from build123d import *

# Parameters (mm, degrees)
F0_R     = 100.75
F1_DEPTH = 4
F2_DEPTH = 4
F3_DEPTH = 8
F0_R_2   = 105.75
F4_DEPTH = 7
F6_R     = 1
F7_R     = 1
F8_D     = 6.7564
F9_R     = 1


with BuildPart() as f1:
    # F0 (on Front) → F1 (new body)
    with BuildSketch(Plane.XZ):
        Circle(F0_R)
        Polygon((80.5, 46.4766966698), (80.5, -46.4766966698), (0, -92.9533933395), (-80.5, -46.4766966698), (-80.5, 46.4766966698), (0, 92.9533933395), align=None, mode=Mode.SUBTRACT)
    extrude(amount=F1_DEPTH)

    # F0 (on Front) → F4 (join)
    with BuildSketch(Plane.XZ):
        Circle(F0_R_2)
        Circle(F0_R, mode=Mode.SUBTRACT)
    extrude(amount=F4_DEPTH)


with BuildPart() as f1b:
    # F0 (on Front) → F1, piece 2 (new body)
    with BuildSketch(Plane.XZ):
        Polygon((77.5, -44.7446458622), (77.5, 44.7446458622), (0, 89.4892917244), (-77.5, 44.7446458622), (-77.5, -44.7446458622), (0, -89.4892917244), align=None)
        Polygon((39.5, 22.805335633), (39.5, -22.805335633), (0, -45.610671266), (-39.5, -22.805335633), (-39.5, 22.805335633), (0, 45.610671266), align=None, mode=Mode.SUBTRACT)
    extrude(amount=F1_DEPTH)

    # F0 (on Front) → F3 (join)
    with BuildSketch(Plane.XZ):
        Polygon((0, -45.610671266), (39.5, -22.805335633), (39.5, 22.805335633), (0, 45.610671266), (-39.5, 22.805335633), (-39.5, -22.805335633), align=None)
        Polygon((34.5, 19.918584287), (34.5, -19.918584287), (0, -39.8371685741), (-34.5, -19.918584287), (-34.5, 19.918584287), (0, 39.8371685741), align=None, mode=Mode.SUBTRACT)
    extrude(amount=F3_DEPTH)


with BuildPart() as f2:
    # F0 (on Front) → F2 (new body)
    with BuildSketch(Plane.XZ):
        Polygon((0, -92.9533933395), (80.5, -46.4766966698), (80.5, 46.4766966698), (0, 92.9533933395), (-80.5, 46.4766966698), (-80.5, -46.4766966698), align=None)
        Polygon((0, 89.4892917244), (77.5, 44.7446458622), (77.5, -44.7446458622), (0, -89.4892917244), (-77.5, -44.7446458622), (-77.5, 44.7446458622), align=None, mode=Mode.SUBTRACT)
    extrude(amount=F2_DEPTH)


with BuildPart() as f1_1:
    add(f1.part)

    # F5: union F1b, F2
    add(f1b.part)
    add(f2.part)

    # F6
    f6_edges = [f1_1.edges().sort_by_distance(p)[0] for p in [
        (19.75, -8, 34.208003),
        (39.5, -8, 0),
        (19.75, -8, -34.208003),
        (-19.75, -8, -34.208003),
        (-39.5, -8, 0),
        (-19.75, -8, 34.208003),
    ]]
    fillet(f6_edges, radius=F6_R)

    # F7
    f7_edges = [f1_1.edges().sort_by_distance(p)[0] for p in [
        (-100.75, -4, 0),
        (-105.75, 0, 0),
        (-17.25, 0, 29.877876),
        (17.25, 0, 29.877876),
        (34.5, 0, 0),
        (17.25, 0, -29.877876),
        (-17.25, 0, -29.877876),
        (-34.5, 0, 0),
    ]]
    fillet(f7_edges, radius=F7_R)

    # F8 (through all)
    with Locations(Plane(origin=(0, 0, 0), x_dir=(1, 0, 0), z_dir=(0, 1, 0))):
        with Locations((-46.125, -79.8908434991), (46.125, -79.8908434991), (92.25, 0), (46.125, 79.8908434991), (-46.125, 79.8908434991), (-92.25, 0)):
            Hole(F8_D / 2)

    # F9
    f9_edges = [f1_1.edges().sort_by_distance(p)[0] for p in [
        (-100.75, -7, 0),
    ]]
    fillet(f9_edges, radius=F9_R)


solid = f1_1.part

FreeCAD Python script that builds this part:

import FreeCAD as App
import Part
import Sketcher
Q = App.Units.Quantity


def edges_at(feature, points):
    """Names of the edges that pass closest to the given points."""
    edges = feature.Shape.Edges
    near = lambda p: min(range(len(edges)), key=lambda i: edges[i].distToShape(Part.Vertex(*p))[0])
    return sorted({f"Edge{near(p) + 1}" for p in points})

doc = App.newDocument("Part")
body = doc.addObject("PartDesign::Body", "Body")

# Sketch on XZ plane
sketch1 = body.newObject("Sketcher::SketchObject", "Sketch")
sketch1.AttachmentSupport = (doc.getObject("XZ_Plane"), [""])
sketch1.MapMode = "FlatFace"
sketch1.addGeometry(Part.Circle(App.Vector(0, 0, 0), App.Vector(0, 0, 1), 101), False)
sketch1.addGeometry(Part.LineSegment(App.Vector(0, 93, 0), App.Vector(80, 46, 0)), False)
sketch1.addGeometry(Part.LineSegment(App.Vector(80, 46, 0), App.Vector(80, -46, 0)), False)
sketch1.addGeometry(Part.LineSegment(App.Vector(80, -46, 0), App.Vector(0, -93, 0)), False)
sketch1.addGeometry(Part.LineSegment(App.Vector(0, -93, 0), App.Vector(-80, -46, 0)), False)
sketch1.addGeometry(Part.LineSegment(App.Vector(-80, -46, 0), App.Vector(-80, 46, 0)), False)
sketch1.addGeometry(Part.LineSegment(App.Vector(-80, 46, 0), App.Vector(0, 93, 0)), False)
sketch1.addConstraint(Sketcher.Constraint("Coincident", 1, 2, 2, 1))
sketch1.addConstraint(Sketcher.Constraint("Coincident", 2, 2, 3, 1))
sketch1.addConstraint(Sketcher.Constraint("Coincident", 3, 2, 4, 1))
sketch1.addConstraint(Sketcher.Constraint("Coincident", 4, 2, 5, 1))
sketch1.addConstraint(Sketcher.Constraint("Coincident", 5, 2, 6, 1))
sketch1.addConstraint(Sketcher.Constraint("Coincident", 6, 2, 1, 1))
sketch1.addConstraint(Sketcher.Constraint("Vertical", 2))
sketch1.addConstraint(Sketcher.Constraint("Vertical", 5))
sketch1.addConstraint(Sketcher.Constraint("Coincident", 0, 3, -1, 1))
sketch1.addConstraint(Sketcher.Constraint("Symmetric", 1, 2, 4, 2, -1, 1))
sketch1.addConstraint(Sketcher.Constraint("Symmetric", 3, 2, 6, 2, -1, 1))
sketch1.addConstraint(Sketcher.Constraint("PointOnObject", 3, 2, -2))
sketch1.addConstraint(Sketcher.Constraint("Parallel", 3, 6))
sketch1.addConstraint(Sketcher.Constraint("Horizontal", 2, 2, 4, 2))
sketch1.addConstraint(Sketcher.Constraint("Diameter", 0, 201.5))
sketch1.addConstraint(Sketcher.Constraint("Angle", 1, Q("-30 deg")))
sketch1.addConstraint(Sketcher.Constraint("DistanceX", 4, 2, 2, 2, 161.0))
sketch1.addConstraint(Sketcher.Constraint("DistanceY", 2, 2, 2, 1, 92.953393))
pad1 = body.newObject("PartDesign::Pad", "Pad")
pad1.Profile = sketch1
pad1.Length = 4

# Sketch on XZ plane
sketch2 = body.newObject("Sketcher::SketchObject", "Sketch001")
sketch2.AttachmentSupport = (doc.getObject("XZ_Plane"), [""])
sketch2.MapMode = "FlatFace"
sketch2.addGeometry(Part.Circle(App.Vector(0, 0, 0), App.Vector(0, 0, 1), 106), False)
sketch2.addGeometry(Part.Circle(App.Vector(0, 0, 0), App.Vector(0, 0, 1), 101), False)
sketch2.addConstraint(Sketcher.Constraint("Coincident", 0, 3, -1, 1))
sketch2.addConstraint(Sketcher.Constraint("Coincident", 1, 3, -1, 1))
sketch2.addConstraint(Sketcher.Constraint("Diameter", 0, 211.5))
sketch2.addConstraint(Sketcher.Constraint("Diameter", 1, 201.5))
pad2 = body.newObject("PartDesign::Pad", "Pad001")
pad2.Profile = sketch2
pad2.Length = 7
body2 = doc.addObject("PartDesign::Body", "Body001")

# Sketch on XZ plane
sketch3 = body2.newObject("Sketcher::SketchObject", "Sketch002")
sketch3.AttachmentSupport = (doc.getObject("XZ_Plane001"), [""])
sketch3.MapMode = "FlatFace"
sketch3.addGeometry(Part.LineSegment(App.Vector(78, -45, 0), App.Vector(78, 45, 0)), False)
sketch3.addGeometry(Part.LineSegment(App.Vector(78, 45, 0), App.Vector(0, 89, 0)), False)
sketch3.addGeometry(Part.LineSegment(App.Vector(0, 89, 0), App.Vector(-78, 45, 0)), False)
sketch3.addGeometry(Part.LineSegment(App.Vector(-78, 45, 0), App.Vector(-78, -45, 0)), False)
sketch3.addGeometry(Part.LineSegment(App.Vector(-78, -45, 0), App.Vector(0, -89, 0)), False)
sketch3.addGeometry(Part.LineSegment(App.Vector(0, -89, 0), App.Vector(78, -45, 0)), False)
sketch3.addGeometry(Part.LineSegment(App.Vector(0, 46, 0), App.Vector(40, 23, 0)), False)
sketch3.addGeometry(Part.LineSegment(App.Vector(40, 23, 0), App.Vector(40, -23, 0)), False)
sketch3.addGeometry(Part.LineSegment(App.Vector(40, -23, 0), App.Vector(0, -46, 0)), False)
sketch3.addGeometry(Part.LineSegment(App.Vector(0, -46, 0), App.Vector(-40, -23, 0)), False)
sketch3.addGeometry(Part.LineSegment(App.Vector(-40, -23, 0), App.Vector(-40, 23, 0)), False)
sketch3.addGeometry(Part.LineSegment(App.Vector(-40, 23, 0), App.Vector(0, 46, 0)), False)
sketch3.addConstraint(Sketcher.Constraint("Coincident", 0, 2, 1, 1))
sketch3.addConstraint(Sketcher.Constraint("Coincident", 1, 2, 2, 1))
sketch3.addConstraint(Sketcher.Constraint("Coincident", 2, 2, 3, 1))
sketch3.addConstraint(Sketcher.Constraint("Coincident", 3, 2, 4, 1))
sketch3.addConstraint(Sketcher.Constraint("Coincident", 4, 2, 5, 1))
sketch3.addConstraint(Sketcher.Constraint("Coincident", 5, 2, 0, 1))
sketch3.addConstraint(Sketcher.Constraint("Coincident", 6, 2, 7, 1))
sketch3.addConstraint(Sketcher.Constraint("Coincident", 7, 2, 8, 1))
sketch3.addConstraint(Sketcher.Constraint("Coincident", 8, 2, 9, 1))
sketch3.addConstraint(Sketcher.Constraint("Coincident", 9, 2, 10, 1))
sketch3.addConstraint(Sketcher.Constraint("Coincident", 10, 2, 11, 1))
sketch3.addConstraint(Sketcher.Constraint("Coincident", 11, 2, 6, 1))
sketch3.addConstraint(Sketcher.Constraint("Vertical", 0))
sketch3.addConstraint(Sketcher.Constraint("Vertical", 3))
sketch3.addConstraint(Sketcher.Constraint("Vertical", 7))
sketch3.addConstraint(Sketcher.Constraint("Vertical", 10))
sketch3.addConstraint(Sketcher.Constraint("Symmetric", 0, 2, 3, 2, -1, 1))
sketch3.addConstraint(Sketcher.Constraint("Symmetric", 1, 2, 4, 2, -1, 1))
sketch3.addConstraint(Sketcher.Constraint("Symmetric", 6, 2, 9, 2, -1, 1))
sketch3.addConstraint(Sketcher.Constraint("Symmetric", 8, 2, 11, 2, -1, 1))
sketch3.addConstraint(Sketcher.Constraint("PointOnObject", 1, 2, -2))
sketch3.addConstraint(Sketcher.Constraint("PointOnObject", 8, 2, -2))
sketch3.addConstraint(Sketcher.Constraint("Parallel", 2, 5))
sketch3.addConstraint(Sketcher.Constraint("Parallel", 4, 6))
sketch3.addConstraint(Sketcher.Constraint("Parallel", 5, 8))
sketch3.addConstraint(Sketcher.Constraint("Parallel", 8, 11))
sketch3.addConstraint(Sketcher.Constraint("Horizontal", 0, 2, 2, 2))
sketch3.addConstraint(Sketcher.Constraint("Angle", 1, Q("150 deg")))
sketch3.addConstraint(Sketcher.Constraint("DistanceX", 2, 2, 0, 2, 155.0))
sketch3.addConstraint(Sketcher.Constraint("DistanceX", 6, 2, 0, 2, 38.0))
sketch3.addConstraint(Sketcher.Constraint("DistanceY", 0, 1, 0, 2, 89.489292))
sketch3.addConstraint(Sketcher.Constraint("DistanceY", 7, 2, 7, 1, 45.610671))
pad3 = body2.newObject("PartDesign::Pad", "Pad002")
pad3.Profile = sketch3
pad3.Length = 4

# Sketch on XZ plane
sketch4 = body2.newObject("Sketcher::SketchObject", "Sketch003")
sketch4.AttachmentSupport = (doc.getObject("XZ_Plane001"), [""])
sketch4.MapMode = "FlatFace"
sketch4.addGeometry(Part.LineSegment(App.Vector(0, -46, 0), App.Vector(40, -23, 0)), False)
sketch4.addGeometry(Part.LineSegment(App.Vector(40, -23, 0), App.Vector(40, 23, 0)), False)
sketch4.addGeometry(Part.LineSegment(App.Vector(40, 23, 0), App.Vector(0, 46, 0)), False)
sketch4.addGeometry(Part.LineSegment(App.Vector(0, 46, 0), App.Vector(-40, 23, 0)), False)
sketch4.addGeometry(Part.LineSegment(App.Vector(-40, 23, 0), App.Vector(-40, -23, 0)), False)
sketch4.addGeometry(Part.LineSegment(App.Vector(-40, -23, 0), App.Vector(0, -46, 0)), False)
sketch4.addGeometry(Part.LineSegment(App.Vector(0, 40, 0), App.Vector(34, 20, 0)), False)
sketch4.addGeometry(Part.LineSegment(App.Vector(34, 20, 0), App.Vector(34, -20, 0)), False)
sketch4.addGeometry(Part.LineSegment(App.Vector(34, -20, 0), App.Vector(0, -40, 0)), False)
sketch4.addGeometry(Part.LineSegment(App.Vector(0, -40, 0), App.Vector(-34, -20, 0)), False)
sketch4.addGeometry(Part.LineSegment(App.Vector(-34, -20, 0), App.Vector(-34, 20, 0)), False)
sketch4.addGeometry(Part.LineSegment(App.Vector(-34, 20, 0), App.Vector(0, 40, 0)), False)
sketch4.addConstraint(Sketcher.Constraint("Coincident", 0, 2, 1, 1))
sketch4.addConstraint(Sketcher.Constraint("Coincident", 1, 2, 2, 1))
sketch4.addConstraint(Sketcher.Constraint("Coincident", 2, 2, 3, 1))
sketch4.addConstraint(Sketcher.Constraint("Coincident", 3, 2, 4, 1))
sketch4.addConstraint(Sketcher.Constraint("Coincident", 4, 2, 5, 1))
sketch4.addConstraint(Sketcher.Constraint("Coincident", 5, 2, 0, 1))
sketch4.addConstraint(Sketcher.Constraint("Coincident", 6, 2, 7, 1))
sketch4.addConstraint(Sketcher.Constraint("Coincident", 7, 2, 8, 1))
sketch4.addConstraint(Sketcher.Constraint("Coincident", 8, 2, 9, 1))
sketch4.addConstraint(Sketcher.Constraint("Coincident", 9, 2, 10, 1))
sketch4.addConstraint(Sketcher.Constraint("Coincident", 10, 2, 11, 1))
sketch4.addConstraint(Sketcher.Constraint("Coincident", 11, 2, 6, 1))
sketch4.addConstraint(Sketcher.Constraint("Vertical", 1))
sketch4.addConstraint(Sketcher.Constraint("Vertical", 4))
sketch4.addConstraint(Sketcher.Constraint("Vertical", 7))
sketch4.addConstraint(Sketcher.Constraint("Vertical", 10))
sketch4.addConstraint(Sketcher.Constraint("Symmetric", 0, 2, 3, 2, -1, 1))
sketch4.addConstraint(Sketcher.Constraint("Symmetric", 2, 2, 5, 2, -1, 1))
sketch4.addConstraint(Sketcher.Constraint("Symmetric", 6, 2, 9, 2, -1, 1))
sketch4.addConstraint(Sketcher.Constraint("Symmetric", 8, 2, 11, 2, -1, 1))
sketch4.addConstraint(Sketcher.Constraint("PointOnObject", 2, 2, -2))
sketch4.addConstraint(Sketcher.Constraint("PointOnObject", 8, 2, -2))
sketch4.addConstraint(Sketcher.Constraint("Parallel", 2, 5))
sketch4.addConstraint(Sketcher.Constraint("Parallel", 5, 6))
sketch4.addConstraint(Sketcher.Constraint("Parallel", 3, 8))
sketch4.addConstraint(Sketcher.Constraint("Parallel", 8, 11))
sketch4.addConstraint(Sketcher.Constraint("Horizontal", 1, 2, 3, 2))
sketch4.addConstraint(Sketcher.Constraint("Angle", 0, Q("30 deg")))
sketch4.addConstraint(Sketcher.Constraint("DistanceX", 3, 2, 1, 2, 79.0))
sketch4.addConstraint(Sketcher.Constraint("DistanceX", 6, 2, 1, 2, 5.0))
sketch4.addConstraint(Sketcher.Constraint("DistanceY", 1, 1, 1, 2, 45.610671))
sketch4.addConstraint(Sketcher.Constraint("DistanceY", 7, 2, 7, 1, 39.837169))
pad4 = body2.newObject("PartDesign::Pad", "Pad003")
pad4.Profile = sketch4
pad4.Length = 8
body3 = doc.addObject("PartDesign::Body", "Body002")

# Sketch on XZ plane
sketch5 = body3.newObject("Sketcher::SketchObject", "Sketch004")
sketch5.AttachmentSupport = (doc.getObject("XZ_Plane002"), [""])
sketch5.MapMode = "FlatFace"
sketch5.addGeometry(Part.LineSegment(App.Vector(0, -93, 0), App.Vector(80, -46, 0)), False)
sketch5.addGeometry(Part.LineSegment(App.Vector(80, -46, 0), App.Vector(80, 46, 0)), False)
sketch5.addGeometry(Part.LineSegment(App.Vector(80, 46, 0), App.Vector(0, 93, 0)), False)
sketch5.addGeometry(Part.LineSegment(App.Vector(0, 93, 0), App.Vector(-80, 46, 0)), False)
sketch5.addGeometry(Part.LineSegment(App.Vector(-80, 46, 0), App.Vector(-80, -46, 0)), False)
sketch5.addGeometry(Part.LineSegment(App.Vector(-80, -46, 0), App.Vector(0, -93, 0)), False)
sketch5.addGeometry(Part.LineSegment(App.Vector(-78, 45, 0), App.Vector(0, 89, 0)), False)
sketch5.addGeometry(Part.LineSegment(App.Vector(0, 89, 0), App.Vector(78, 45, 0)), False)
sketch5.addGeometry(Part.LineSegment(App.Vector(78, 45, 0), App.Vector(78, -45, 0)), False)
sketch5.addGeometry(Part.LineSegment(App.Vector(78, -45, 0), App.Vector(0, -89, 0)), False)
sketch5.addGeometry(Part.LineSegment(App.Vector(0, -89, 0), App.Vector(-78, -45, 0)), False)
sketch5.addGeometry(Part.LineSegment(App.Vector(-78, -45, 0), App.Vector(-78, 45, 0)), False)
sketch5.addConstraint(Sketcher.Constraint("Coincident", 0, 2, 1, 1))
sketch5.addConstraint(Sketcher.Constraint("Coincident", 1, 2, 2, 1))
sketch5.addConstraint(Sketcher.Constraint("Coincident", 2, 2, 3, 1))
sketch5.addConstraint(Sketcher.Constraint("Coincident", 3, 2, 4, 1))
sketch5.addConstraint(Sketcher.Constraint("Coincident", 4, 2, 5, 1))
sketch5.addConstraint(Sketcher.Constraint("Coincident", 5, 2, 0, 1))
sketch5.addConstraint(Sketcher.Constraint("Coincident", 6, 2, 7, 1))
sketch5.addConstraint(Sketcher.Constraint("Coincident", 7, 2, 8, 1))
sketch5.addConstraint(Sketcher.Constraint("Coincident", 8, 2, 9, 1))
sketch5.addConstraint(Sketcher.Constraint("Coincident", 9, 2, 10, 1))
sketch5.addConstraint(Sketcher.Constraint("Coincident", 10, 2, 11, 1))
sketch5.addConstraint(Sketcher.Constraint("Coincident", 11, 2, 6, 1))
sketch5.addConstraint(Sketcher.Constraint("Vertical", 1))
sketch5.addConstraint(Sketcher.Constraint("Vertical", 4))
sketch5.addConstraint(Sketcher.Constraint("Vertical", 8))
sketch5.addConstraint(Sketcher.Constraint("Vertical", 11))
sketch5.addConstraint(Sketcher.Constraint("Symmetric", 0, 2, 3, 2, -1, 1))
sketch5.addConstraint(Sketcher.Constraint("Symmetric", 2, 2, 5, 2, -1, 1))
sketch5.addConstraint(Sketcher.Constraint("Symmetric", 6, 2, 9, 2, -1, 1))
sketch5.addConstraint(Sketcher.Constraint("Symmetric", 7, 2, 10, 2, -1, 1))
sketch5.addConstraint(Sketcher.Constraint("PointOnObject", 2, 2, -2))
sketch5.addConstraint(Sketcher.Constraint("PointOnObject", 6, 2, -2))
sketch5.addConstraint(Sketcher.Constraint("Parallel", 2, 5))
sketch5.addConstraint(Sketcher.Constraint("Parallel", 3, 6))
sketch5.addConstraint(Sketcher.Constraint("Parallel", 5, 7))
sketch5.addConstraint(Sketcher.Constraint("Parallel", 6, 9))
sketch5.addConstraint(Sketcher.Constraint("Horizontal", 1, 2, 3, 2))
sketch5.addConstraint(Sketcher.Constraint("Angle", 0, Q("30 deg")))
sketch5.addConstraint(Sketcher.Constraint("DistanceX", 3, 2, 1, 2, 161.0))
sketch5.addConstraint(Sketcher.Constraint("DistanceX", 7, 2, 1, 2, 3.0))
sketch5.addConstraint(Sketcher.Constraint("DistanceY", 8, 2, 8, 1, 89.489292))
sketch5.addConstraint(Sketcher.Constraint("DistanceY", 6, 2, 2, 2, 3.464102))
pad5 = body3.newObject("PartDesign::Pad", "Pad004")
pad5.Profile = sketch5
pad5.Length = 4
body.AllowCompound = True
doc.recompute()

boolean = body.newObject("PartDesign::Boolean", "Boolean")
boolean.Type = "Fuse"
boolean.addObjects([body2])
doc.recompute()

boolean2 = body.newObject("PartDesign::Boolean", "Boolean001")
boolean2.Type = "Fuse"
boolean2.addObjects([body3])
doc.recompute()

fillet = body.newObject("PartDesign::Fillet", "Fillet")
fillet.Base = (boolean2, edges_at(boolean2, [
    (19.75, -8, 34.208),
    (39.5, -8, 0),
    (19.75, -8, -34.208),
    (-19.75, -8, -34.208),
    (-39.5, -8, 0),
    (-19.75, -8, 34.208),
]))
fillet.Radius = 1
doc.recompute()

fillet2 = body.newObject("PartDesign::Fillet", "Fillet001")
fillet2.Base = (fillet, edges_at(fillet, [
    (-100.75, -4, 0),
    (-105.75, 0, 0),
    (-17.25, 0, 29.878),
    (17.25, 0, 29.878),
    (34.5, 0, 0),
    (17.25, 0, -29.878),
    (-17.25, 0, -29.878),
    (-34.5, 0, 0),
]))
fillet2.Radius = 1

# Sketch on XZ plane
sketch6 = body.newObject("Sketcher::SketchObject", "Sketch005")
sketch6.AttachmentSupport = (doc.getObject("XZ_Plane"), [""])
sketch6.MapMode = "FlatFace"
sketch6.addGeometry(Part.Circle(App.Vector(-46.1, 79.9, 0), App.Vector(0, 0, 1), 3.4), False)
sketch6.addGeometry(Part.Circle(App.Vector(46.1, 79.9, 0), App.Vector(0, 0, 1), 3.4), False)
sketch6.addGeometry(Part.Circle(App.Vector(92.2, 0, 0), App.Vector(0, 0, 1), 3.4), False)
sketch6.addGeometry(Part.Circle(App.Vector(46.1, -79.9, 0), App.Vector(0, 0, 1), 3.4), False)
sketch6.addGeometry(Part.Circle(App.Vector(-46.1, -79.9, 0), App.Vector(0, 0, 1), 3.4), False)
sketch6.addGeometry(Part.Circle(App.Vector(-92.2, 0, 0), App.Vector(0, 0, 1), 3.4), False)
sketch6.addConstraint(Sketcher.Constraint("Equal", 0, 1))
sketch6.addConstraint(Sketcher.Constraint("Equal", 1, 2))
sketch6.addConstraint(Sketcher.Constraint("Equal", 2, 3))
sketch6.addConstraint(Sketcher.Constraint("Equal", 3, 4))
sketch6.addConstraint(Sketcher.Constraint("Equal", 4, 5))
sketch6.addConstraint(Sketcher.Constraint("Symmetric", 0, 3, 3, 3, -1, 1))
sketch6.addConstraint(Sketcher.Constraint("Symmetric", 1, 3, 4, 3, -1, 1))
sketch6.addConstraint(Sketcher.Constraint("Symmetric", 2, 3, 5, 3, -1, 1))
sketch6.addConstraint(Sketcher.Constraint("Symmetric", 0, 3, 1, 3, -2))
sketch6.addConstraint(Sketcher.Constraint("PointOnObject", 2, 3, -1))
sketch6.addConstraint(Sketcher.Constraint("Diameter", 0, 6.7564))
sketch6.addConstraint(Sketcher.Constraint("DistanceX", 5, 3, 2, 3, 184.5))
sketch6.addConstraint(Sketcher.Constraint("DistanceX", 0, 3, 1, 3, 92.25))
sketch6.addConstraint(Sketcher.Constraint("DistanceY", -1, 1, 0, 3, 79.890843))
doc.recompute()
hole = body.newObject("PartDesign::Hole", "Hole")
hole.Profile = sketch6
hole.ThreadType = "None"
hole.Diameter = 6.7564
hole.DepthType = "ThroughAll"
hole.Reversed = True
doc.recompute()

fillet3 = body.newObject("PartDesign::Fillet", "Fillet002")
fillet3.Base = (hole, edges_at(hole, [(-100.75, -7, 0)]))
fillet3.Radius = 1

doc.recompute()
